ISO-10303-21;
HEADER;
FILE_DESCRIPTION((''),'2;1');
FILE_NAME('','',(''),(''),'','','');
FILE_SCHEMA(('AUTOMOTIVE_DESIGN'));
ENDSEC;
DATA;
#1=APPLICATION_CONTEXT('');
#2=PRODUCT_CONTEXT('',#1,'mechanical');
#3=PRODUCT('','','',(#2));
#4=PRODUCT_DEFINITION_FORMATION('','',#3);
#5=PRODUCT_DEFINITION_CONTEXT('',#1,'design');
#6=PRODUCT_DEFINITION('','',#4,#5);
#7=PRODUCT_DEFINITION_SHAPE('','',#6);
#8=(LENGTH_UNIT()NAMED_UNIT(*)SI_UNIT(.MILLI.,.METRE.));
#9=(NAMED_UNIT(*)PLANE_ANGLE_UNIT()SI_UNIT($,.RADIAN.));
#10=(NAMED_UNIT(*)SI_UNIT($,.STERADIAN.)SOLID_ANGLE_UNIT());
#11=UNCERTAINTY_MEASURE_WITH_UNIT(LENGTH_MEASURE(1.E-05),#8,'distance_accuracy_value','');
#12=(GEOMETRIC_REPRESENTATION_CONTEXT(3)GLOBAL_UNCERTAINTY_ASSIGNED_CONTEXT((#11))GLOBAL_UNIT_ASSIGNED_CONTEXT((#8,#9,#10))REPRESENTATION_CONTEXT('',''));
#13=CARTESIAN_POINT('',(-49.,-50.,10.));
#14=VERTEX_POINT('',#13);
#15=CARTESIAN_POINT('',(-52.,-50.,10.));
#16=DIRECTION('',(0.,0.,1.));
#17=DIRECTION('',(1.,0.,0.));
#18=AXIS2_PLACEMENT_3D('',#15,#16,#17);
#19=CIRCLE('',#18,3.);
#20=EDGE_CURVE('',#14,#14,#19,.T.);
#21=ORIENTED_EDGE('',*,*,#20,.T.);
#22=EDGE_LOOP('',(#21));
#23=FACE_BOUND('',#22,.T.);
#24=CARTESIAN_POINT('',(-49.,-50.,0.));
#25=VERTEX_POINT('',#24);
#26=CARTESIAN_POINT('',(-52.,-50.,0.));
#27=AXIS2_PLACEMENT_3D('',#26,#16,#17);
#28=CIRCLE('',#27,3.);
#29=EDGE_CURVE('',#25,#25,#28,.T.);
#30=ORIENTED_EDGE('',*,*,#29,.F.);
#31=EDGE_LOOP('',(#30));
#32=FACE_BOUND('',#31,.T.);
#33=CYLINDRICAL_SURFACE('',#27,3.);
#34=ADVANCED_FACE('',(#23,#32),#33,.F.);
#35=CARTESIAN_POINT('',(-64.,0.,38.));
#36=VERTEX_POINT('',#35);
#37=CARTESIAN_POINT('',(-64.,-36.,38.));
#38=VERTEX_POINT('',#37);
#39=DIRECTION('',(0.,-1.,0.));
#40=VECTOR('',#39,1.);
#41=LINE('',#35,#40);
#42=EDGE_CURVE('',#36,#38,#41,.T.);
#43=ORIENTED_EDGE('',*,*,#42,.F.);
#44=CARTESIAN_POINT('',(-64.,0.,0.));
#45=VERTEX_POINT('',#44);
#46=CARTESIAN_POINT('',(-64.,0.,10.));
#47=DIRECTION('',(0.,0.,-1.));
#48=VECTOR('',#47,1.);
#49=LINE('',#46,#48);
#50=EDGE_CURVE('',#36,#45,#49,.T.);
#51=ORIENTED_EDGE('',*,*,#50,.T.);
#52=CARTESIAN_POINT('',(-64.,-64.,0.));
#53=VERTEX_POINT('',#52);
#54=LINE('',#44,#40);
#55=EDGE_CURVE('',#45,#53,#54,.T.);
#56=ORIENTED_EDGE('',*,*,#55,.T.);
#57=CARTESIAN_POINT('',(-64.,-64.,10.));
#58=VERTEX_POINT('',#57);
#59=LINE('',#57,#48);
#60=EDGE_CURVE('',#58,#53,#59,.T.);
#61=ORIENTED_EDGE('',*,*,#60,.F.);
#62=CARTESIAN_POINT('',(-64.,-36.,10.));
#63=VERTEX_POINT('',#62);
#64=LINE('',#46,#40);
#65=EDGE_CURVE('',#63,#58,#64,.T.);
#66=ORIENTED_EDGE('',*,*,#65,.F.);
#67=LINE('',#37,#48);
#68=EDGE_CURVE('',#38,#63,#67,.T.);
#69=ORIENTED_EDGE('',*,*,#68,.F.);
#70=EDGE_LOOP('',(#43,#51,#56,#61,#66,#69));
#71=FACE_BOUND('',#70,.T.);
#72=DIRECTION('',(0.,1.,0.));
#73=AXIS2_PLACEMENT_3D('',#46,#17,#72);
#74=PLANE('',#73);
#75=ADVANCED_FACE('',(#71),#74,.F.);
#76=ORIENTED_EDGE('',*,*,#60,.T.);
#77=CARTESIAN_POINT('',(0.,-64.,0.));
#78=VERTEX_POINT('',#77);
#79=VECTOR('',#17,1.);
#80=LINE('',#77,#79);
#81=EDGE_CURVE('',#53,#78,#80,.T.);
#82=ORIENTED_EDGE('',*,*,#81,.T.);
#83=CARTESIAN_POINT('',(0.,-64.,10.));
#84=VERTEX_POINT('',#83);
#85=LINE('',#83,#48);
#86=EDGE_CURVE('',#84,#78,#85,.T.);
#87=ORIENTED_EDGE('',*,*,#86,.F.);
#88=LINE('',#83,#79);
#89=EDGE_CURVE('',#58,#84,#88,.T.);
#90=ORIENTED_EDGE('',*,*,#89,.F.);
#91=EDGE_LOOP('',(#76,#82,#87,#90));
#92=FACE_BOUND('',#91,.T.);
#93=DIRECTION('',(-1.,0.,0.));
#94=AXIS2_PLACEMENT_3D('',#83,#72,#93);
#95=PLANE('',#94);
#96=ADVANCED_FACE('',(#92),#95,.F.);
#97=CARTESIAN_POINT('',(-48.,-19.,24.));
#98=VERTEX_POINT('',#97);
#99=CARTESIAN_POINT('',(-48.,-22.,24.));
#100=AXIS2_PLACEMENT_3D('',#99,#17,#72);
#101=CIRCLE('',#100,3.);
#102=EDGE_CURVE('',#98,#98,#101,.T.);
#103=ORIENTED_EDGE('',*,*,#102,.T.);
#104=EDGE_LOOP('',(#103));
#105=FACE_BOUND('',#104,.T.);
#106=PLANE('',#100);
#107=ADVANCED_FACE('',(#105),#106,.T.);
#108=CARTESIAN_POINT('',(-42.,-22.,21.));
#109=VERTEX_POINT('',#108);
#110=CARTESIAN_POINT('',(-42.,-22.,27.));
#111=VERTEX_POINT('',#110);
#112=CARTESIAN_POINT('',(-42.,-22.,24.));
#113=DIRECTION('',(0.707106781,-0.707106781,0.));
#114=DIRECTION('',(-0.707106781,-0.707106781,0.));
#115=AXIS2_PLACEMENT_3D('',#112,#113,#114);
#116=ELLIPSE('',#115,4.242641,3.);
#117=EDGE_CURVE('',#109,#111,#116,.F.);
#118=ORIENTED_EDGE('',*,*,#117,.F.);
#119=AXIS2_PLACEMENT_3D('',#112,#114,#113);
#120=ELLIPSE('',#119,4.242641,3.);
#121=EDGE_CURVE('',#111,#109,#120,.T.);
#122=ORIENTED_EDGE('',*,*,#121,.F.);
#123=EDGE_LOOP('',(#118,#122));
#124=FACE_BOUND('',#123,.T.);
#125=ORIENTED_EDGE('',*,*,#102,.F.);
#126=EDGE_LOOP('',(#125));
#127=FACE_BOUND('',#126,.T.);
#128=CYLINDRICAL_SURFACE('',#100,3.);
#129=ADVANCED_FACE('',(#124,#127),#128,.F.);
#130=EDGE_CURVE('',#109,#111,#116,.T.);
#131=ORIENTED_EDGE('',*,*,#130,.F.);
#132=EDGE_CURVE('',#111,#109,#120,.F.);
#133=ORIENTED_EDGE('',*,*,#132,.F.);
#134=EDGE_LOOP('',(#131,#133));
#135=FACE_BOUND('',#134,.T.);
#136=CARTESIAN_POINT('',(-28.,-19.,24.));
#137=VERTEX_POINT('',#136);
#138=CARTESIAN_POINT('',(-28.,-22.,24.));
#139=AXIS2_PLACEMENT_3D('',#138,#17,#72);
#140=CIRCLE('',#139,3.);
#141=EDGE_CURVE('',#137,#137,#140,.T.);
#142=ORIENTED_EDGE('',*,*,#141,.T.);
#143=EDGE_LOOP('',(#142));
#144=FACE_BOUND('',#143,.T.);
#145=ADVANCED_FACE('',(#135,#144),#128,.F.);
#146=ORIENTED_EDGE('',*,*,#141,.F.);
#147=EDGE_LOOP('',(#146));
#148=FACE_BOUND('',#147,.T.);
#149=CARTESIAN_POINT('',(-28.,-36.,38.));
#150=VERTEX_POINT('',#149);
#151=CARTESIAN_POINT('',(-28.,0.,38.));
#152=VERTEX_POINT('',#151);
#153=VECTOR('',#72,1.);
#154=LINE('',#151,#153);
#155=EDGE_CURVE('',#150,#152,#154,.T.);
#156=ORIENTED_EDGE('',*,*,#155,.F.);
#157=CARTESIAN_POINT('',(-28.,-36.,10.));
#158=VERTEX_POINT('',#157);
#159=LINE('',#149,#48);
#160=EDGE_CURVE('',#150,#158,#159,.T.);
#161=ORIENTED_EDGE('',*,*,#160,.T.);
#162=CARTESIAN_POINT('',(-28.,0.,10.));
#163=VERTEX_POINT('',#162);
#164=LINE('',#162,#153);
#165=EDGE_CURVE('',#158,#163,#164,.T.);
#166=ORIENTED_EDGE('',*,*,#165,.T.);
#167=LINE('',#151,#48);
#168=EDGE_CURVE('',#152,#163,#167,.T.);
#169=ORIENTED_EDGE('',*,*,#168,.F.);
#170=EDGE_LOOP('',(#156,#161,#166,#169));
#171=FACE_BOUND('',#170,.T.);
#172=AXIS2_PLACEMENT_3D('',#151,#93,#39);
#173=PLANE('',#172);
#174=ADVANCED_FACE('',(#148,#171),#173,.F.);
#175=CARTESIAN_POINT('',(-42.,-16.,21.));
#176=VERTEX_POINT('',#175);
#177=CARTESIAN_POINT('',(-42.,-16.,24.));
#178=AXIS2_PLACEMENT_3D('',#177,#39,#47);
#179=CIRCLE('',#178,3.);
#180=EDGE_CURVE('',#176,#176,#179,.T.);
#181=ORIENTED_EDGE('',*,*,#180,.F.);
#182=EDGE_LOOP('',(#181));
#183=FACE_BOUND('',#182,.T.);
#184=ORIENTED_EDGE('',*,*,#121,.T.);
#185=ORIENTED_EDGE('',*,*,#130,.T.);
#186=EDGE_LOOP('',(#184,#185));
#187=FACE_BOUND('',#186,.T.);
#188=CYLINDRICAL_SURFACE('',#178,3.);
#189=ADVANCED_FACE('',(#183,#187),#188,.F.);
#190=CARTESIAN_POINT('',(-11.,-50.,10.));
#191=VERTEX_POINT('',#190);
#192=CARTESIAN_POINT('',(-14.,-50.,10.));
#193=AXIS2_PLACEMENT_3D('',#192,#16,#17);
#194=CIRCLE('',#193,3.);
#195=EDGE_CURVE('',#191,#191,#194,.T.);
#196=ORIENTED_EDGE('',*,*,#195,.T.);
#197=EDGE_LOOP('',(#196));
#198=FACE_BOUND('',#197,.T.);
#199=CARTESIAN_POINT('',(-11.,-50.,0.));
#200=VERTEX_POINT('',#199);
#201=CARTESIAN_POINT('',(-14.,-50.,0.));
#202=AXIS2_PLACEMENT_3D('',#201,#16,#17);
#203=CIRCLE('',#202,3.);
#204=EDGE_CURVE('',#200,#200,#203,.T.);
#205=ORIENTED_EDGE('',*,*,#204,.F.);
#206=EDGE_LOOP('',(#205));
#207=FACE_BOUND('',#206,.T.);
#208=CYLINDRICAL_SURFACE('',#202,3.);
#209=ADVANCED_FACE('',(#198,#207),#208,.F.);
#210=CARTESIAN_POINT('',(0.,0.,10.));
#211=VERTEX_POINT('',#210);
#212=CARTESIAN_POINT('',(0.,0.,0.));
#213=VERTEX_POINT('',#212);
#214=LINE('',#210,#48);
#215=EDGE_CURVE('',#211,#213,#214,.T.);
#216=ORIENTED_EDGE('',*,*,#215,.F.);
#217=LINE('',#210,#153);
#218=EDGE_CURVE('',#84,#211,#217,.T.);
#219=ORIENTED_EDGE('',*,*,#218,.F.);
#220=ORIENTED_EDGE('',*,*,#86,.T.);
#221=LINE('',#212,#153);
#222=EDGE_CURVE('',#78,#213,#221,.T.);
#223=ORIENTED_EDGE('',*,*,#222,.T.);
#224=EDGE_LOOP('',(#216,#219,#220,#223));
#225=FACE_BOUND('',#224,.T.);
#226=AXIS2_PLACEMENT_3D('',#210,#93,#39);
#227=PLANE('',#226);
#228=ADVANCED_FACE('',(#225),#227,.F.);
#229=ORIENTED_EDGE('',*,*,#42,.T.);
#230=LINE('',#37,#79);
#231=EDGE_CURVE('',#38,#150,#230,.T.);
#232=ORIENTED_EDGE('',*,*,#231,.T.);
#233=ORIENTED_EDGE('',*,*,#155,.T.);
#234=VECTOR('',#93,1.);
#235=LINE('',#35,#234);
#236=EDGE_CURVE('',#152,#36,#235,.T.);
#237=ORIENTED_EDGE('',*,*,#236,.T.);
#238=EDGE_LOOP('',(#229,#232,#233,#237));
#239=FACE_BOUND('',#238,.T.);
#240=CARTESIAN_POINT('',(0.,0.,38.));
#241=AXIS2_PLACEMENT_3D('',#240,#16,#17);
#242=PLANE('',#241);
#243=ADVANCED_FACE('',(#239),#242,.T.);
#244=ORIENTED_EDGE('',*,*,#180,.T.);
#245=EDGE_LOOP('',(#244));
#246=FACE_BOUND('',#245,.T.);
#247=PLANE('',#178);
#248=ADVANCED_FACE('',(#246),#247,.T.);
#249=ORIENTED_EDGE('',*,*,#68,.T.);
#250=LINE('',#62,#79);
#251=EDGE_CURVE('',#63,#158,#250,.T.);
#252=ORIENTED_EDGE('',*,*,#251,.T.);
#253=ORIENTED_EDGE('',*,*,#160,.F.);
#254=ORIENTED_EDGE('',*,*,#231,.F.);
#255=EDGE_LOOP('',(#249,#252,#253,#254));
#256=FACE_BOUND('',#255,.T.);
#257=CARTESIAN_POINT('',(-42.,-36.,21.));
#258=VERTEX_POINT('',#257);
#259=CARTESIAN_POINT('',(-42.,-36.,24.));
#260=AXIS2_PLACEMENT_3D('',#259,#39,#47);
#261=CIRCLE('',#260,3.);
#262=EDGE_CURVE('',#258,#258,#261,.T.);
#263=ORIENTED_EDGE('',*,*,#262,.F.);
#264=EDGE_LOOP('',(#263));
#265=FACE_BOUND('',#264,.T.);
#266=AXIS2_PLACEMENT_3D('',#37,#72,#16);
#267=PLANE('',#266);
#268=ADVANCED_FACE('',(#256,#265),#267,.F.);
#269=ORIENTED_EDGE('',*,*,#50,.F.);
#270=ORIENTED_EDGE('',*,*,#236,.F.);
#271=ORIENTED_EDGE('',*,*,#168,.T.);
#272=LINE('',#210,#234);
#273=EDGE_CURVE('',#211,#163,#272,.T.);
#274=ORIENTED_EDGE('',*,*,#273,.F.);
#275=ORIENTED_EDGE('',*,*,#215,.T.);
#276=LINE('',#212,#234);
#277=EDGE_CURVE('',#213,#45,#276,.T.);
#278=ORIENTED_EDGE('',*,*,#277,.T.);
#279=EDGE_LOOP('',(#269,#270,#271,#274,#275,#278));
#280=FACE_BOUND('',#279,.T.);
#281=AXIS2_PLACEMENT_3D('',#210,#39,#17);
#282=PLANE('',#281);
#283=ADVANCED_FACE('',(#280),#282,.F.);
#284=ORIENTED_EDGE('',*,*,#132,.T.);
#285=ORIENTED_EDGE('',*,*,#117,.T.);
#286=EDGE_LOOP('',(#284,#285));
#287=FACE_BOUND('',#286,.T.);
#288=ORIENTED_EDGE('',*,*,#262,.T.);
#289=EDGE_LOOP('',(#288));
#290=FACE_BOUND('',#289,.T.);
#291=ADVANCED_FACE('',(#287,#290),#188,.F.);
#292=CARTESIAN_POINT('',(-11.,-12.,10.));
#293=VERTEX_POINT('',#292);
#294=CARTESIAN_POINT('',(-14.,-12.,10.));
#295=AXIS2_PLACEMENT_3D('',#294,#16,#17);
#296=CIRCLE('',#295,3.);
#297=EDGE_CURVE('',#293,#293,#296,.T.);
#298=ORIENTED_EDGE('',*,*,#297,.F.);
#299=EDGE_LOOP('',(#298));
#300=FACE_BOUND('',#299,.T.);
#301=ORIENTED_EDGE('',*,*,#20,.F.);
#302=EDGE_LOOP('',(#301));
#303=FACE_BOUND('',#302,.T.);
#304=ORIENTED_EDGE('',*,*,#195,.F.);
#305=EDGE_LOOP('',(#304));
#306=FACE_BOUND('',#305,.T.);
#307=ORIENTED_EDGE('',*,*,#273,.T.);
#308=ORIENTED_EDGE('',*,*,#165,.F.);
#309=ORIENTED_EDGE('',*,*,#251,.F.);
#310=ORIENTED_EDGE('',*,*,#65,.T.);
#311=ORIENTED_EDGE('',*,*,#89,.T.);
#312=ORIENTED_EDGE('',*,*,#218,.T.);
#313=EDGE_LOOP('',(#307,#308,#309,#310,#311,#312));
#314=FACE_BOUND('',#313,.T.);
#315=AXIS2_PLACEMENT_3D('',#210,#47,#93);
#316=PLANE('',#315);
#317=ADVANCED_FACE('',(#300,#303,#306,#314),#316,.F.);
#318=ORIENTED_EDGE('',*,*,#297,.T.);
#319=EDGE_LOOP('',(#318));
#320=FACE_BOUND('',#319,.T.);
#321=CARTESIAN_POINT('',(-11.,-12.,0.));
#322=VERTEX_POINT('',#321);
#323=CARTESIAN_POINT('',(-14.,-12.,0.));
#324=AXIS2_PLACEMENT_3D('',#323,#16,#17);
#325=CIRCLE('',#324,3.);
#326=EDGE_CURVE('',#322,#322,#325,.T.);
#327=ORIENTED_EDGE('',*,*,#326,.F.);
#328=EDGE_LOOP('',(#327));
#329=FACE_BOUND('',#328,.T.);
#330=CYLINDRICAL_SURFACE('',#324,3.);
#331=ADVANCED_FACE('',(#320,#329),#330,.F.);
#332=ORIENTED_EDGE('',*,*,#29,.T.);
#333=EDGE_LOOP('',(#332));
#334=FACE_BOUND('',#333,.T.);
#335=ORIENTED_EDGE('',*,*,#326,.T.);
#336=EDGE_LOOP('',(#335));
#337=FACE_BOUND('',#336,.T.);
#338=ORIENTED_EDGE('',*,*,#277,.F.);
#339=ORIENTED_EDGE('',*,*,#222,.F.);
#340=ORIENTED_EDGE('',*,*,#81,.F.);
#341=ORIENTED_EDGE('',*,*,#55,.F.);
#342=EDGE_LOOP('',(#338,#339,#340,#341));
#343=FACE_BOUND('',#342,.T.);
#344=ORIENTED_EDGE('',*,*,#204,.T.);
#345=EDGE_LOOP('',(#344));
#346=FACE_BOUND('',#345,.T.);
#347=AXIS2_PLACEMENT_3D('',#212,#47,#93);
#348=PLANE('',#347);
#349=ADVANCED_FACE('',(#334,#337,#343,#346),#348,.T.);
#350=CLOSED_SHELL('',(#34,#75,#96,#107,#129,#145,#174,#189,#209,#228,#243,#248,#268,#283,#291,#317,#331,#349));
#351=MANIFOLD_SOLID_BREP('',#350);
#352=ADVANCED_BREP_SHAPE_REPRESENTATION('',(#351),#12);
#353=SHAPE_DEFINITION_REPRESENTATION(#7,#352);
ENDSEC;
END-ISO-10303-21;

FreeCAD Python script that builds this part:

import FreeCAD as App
import Part
import Sketcher
from FreeCAD import Vector


def add_polygon(sketch, points):
    """Adds a closed chain of lines whose ends are joined by coincident constraints."""
    first, n = sketch.GeometryCount, len(points)
    for a, b in zip(points, points[1:] + points[:1]):
        sketch.addGeometry(Part.LineSegment(App.Vector(*a, 0), App.Vector(*b, 0)), False)
    for i in range(n):
        sketch.addConstraint(Sketcher.Constraint("Coincident", first + i, 2, first + (i + 1) % n, 1))

doc = App.newDocument("Part")
body = doc.addObject("PartDesign::Body", "Body")

# Sketch on XY plane
sketch1 = doc.addObject("Sketcher::SketchObject", "Sketch")
body.addObject(sketch1)
sketch1.AttachmentSupport = (doc.XY_Plane, [""])
sketch1.MapMode = "FlatFace"
add_polygon(sketch1, [(-64, 0), (-64, -64), (0, -64), (0, 0)])  # lines 0-3
sketch1.addConstraint(Sketcher.Constraint("Vertical", 0))
sketch1.addConstraint(Sketcher.Constraint("Horizontal", 1))
sketch1.addConstraint(Sketcher.Constraint("Vertical", 2))
sketch1.addConstraint(Sketcher.Constraint("Horizontal", 3))
sketch1.addConstraint(Sketcher.Constraint("Coincident", 2, 2, -1, 1))
sketch1.addConstraint(Sketcher.Constraint("Equal", 3, 0))
sketch1.addConstraint(Sketcher.Constraint("DistanceX", 1, 1, 1, 2, 64.0))
pad1 = doc.addObject("PartDesign::Pad", "Pad")
body.addObject(pad1)
pad1.Profile = sketch1
pad1.Length = 10

# Sketch on XY plane
sketch2 = doc.addObject("Sketcher::SketchObject", "Sketch001")
body.addObject(sketch2)
sketch2.AttachmentSupport = (doc.XY_Plane, [""])
sketch2.MapMode = "FlatFace"
sketch2.AttachmentOffset = App.Placement(Vector(0, 0, 10), App.Rotation())
add_polygon(sketch2, [(-64, 0), (-64, -36), (-28, -36), (-28, 0)])  # lines 0-3
sketch2.addConstraint(Sketcher.Constraint("Vertical", 0))
sketch2.addConstraint(Sketcher.Constraint("Horizontal", 1))
sketch2.addConstraint(Sketcher.Constraint("Vertical", 2))
sketch2.addConstraint(Sketcher.Constraint("Horizontal", 3))
sketch2.addConstraint(Sketcher.Constraint("PointOnObject", 2, 2, -1))
sketch2.addConstraint(Sketcher.Constraint("Equal", 3, 0))
sketch2.addConstraint(Sketcher.Constraint("DistanceX", 1, 1, 1, 2, 36.0))
sketch2.addConstraint(Sketcher.Constraint("DistanceX", 0, 2, -1, 1, 64.0))
pad2 = doc.addObject("PartDesign::Pad", "Pad001")
body.addObject(pad2)
pad2.Profile = sketch2
pad2.Length = 28

# Sketch on XZ plane
sketch3 = doc.addObject("Sketcher::SketchObject", "Sketch002")
body.addObject(sketch3)
sketch3.AttachmentSupport = (doc.XZ_Plane, [""])
sketch3.MapMode = "FlatFace"
sketch3.AttachmentOffset = App.Placement(Vector(0, 0, 36), App.Rotation())
sketch3.addGeometry(Part.Circle(Vector(-42, 24, 0), Vector(0, 0, 1), 3), False)
sketch3.addConstraint(Sketcher.Constraint("Diameter", 0, 6.0))
sketch3.addConstraint(Sketcher.Constraint("DistanceX", 0, 3, -1, 1, 42.0))
sketch3.addConstraint(Sketcher.Constraint("DistanceY", -1, 1, 0, 3, 24.0))
pocket1 = doc.addObject("PartDesign::Pocket", "Pocket")
body.addObject(pocket1)
pocket1.Profile = sketch3
pocket1.Length = 20

# Sketch on YZ plane
sketch4 = doc.addObject("Sketcher::SketchObject", "Sketch003")
body.addObject(sketch4)
sketch4.AttachmentSupport = (doc.YZ_Plane, [""])
sketch4.MapMode = "FlatFace"
sketch4.AttachmentOffset = App.Placement(Vector(0, 0, -28), App.Rotation())
sketch4.addGeometry(Part.Circle(Vector(-22, 24, 0), Vector(0, 0, 1), 3), False)
sketch4.addConstraint(Sketcher.Constraint("Diameter", 0, 6.0))
sketch4.addConstraint(Sketcher.Constraint("DistanceX", 0, 3, -1, 1, 22.0))
sketch4.addConstraint(Sketcher.Constraint("DistanceY", -1, 1, 0, 3, 24.0))
pocket2 = doc.addObject("PartDesign::Pocket", "Pocket001")
body.addObject(pocket2)
pocket2.Profile = sketch4
pocket2.Length = 20

# Sketch on XY plane
sketch5 = doc.addObject("Sketcher::SketchObject", "Sketch004")
body.addObject(sketch5)
sketch5.AttachmentSupport = (doc.XY_Plane, [""])
sketch5.MapMode = "FlatFace"
sketch5.AttachmentOffset = App.Placement(Vector(0, 0, 10), App.Rotation())
sketch5.addGeometry(Part.Circle(Vector(-14, -50, 0), Vector(0, 0, 1), 3), False)
sketch5.addGeometry(Part.Circle(Vector(-14, -12, 0), Vector(0, 0, 1), 3), False)
sketch5.addGeometry(Part.Circle(Vector(-52, -50, 0), Vector(0, 0, 1), 3), False)
sketch5.addConstraint(Sketcher.Constraint("Equal", 0, 1))
sketch5.addConstraint(Sketcher.Constraint("Equal", 1, 2))
sketch5.addConstraint(Sketcher.Constraint("Horizontal", 0, 3, 2, 3))
sketch5.addConstraint(Sketcher.Constraint("Vertical", 0, 3, 1, 3))
sketch5.addConstraint(Sketcher.Constraint("Diameter", 0, 6.0))
sketch5.addConstraint(Sketcher.Constraint("DistanceX", 0, 3, -1, 1, 14.0))
sketch5.addConstraint(Sketcher.Constraint("DistanceY", 0, 3, -1, 1, 50.0))
sketch5.addConstraint(Sketcher.Constraint("DistanceY", 1, 3, -1, 1, 12.0))
sketch5.addConstraint(Sketcher.Constraint("DistanceX", 2, 3, -1, 1, 52.0))
pocket3 = doc.addObject("PartDesign::Pocket", "Pocket002")
body.addObject(pocket3)
pocket3.Profile = sketch5
pocket3.Type = "ThroughAll"

doc.recompute()
